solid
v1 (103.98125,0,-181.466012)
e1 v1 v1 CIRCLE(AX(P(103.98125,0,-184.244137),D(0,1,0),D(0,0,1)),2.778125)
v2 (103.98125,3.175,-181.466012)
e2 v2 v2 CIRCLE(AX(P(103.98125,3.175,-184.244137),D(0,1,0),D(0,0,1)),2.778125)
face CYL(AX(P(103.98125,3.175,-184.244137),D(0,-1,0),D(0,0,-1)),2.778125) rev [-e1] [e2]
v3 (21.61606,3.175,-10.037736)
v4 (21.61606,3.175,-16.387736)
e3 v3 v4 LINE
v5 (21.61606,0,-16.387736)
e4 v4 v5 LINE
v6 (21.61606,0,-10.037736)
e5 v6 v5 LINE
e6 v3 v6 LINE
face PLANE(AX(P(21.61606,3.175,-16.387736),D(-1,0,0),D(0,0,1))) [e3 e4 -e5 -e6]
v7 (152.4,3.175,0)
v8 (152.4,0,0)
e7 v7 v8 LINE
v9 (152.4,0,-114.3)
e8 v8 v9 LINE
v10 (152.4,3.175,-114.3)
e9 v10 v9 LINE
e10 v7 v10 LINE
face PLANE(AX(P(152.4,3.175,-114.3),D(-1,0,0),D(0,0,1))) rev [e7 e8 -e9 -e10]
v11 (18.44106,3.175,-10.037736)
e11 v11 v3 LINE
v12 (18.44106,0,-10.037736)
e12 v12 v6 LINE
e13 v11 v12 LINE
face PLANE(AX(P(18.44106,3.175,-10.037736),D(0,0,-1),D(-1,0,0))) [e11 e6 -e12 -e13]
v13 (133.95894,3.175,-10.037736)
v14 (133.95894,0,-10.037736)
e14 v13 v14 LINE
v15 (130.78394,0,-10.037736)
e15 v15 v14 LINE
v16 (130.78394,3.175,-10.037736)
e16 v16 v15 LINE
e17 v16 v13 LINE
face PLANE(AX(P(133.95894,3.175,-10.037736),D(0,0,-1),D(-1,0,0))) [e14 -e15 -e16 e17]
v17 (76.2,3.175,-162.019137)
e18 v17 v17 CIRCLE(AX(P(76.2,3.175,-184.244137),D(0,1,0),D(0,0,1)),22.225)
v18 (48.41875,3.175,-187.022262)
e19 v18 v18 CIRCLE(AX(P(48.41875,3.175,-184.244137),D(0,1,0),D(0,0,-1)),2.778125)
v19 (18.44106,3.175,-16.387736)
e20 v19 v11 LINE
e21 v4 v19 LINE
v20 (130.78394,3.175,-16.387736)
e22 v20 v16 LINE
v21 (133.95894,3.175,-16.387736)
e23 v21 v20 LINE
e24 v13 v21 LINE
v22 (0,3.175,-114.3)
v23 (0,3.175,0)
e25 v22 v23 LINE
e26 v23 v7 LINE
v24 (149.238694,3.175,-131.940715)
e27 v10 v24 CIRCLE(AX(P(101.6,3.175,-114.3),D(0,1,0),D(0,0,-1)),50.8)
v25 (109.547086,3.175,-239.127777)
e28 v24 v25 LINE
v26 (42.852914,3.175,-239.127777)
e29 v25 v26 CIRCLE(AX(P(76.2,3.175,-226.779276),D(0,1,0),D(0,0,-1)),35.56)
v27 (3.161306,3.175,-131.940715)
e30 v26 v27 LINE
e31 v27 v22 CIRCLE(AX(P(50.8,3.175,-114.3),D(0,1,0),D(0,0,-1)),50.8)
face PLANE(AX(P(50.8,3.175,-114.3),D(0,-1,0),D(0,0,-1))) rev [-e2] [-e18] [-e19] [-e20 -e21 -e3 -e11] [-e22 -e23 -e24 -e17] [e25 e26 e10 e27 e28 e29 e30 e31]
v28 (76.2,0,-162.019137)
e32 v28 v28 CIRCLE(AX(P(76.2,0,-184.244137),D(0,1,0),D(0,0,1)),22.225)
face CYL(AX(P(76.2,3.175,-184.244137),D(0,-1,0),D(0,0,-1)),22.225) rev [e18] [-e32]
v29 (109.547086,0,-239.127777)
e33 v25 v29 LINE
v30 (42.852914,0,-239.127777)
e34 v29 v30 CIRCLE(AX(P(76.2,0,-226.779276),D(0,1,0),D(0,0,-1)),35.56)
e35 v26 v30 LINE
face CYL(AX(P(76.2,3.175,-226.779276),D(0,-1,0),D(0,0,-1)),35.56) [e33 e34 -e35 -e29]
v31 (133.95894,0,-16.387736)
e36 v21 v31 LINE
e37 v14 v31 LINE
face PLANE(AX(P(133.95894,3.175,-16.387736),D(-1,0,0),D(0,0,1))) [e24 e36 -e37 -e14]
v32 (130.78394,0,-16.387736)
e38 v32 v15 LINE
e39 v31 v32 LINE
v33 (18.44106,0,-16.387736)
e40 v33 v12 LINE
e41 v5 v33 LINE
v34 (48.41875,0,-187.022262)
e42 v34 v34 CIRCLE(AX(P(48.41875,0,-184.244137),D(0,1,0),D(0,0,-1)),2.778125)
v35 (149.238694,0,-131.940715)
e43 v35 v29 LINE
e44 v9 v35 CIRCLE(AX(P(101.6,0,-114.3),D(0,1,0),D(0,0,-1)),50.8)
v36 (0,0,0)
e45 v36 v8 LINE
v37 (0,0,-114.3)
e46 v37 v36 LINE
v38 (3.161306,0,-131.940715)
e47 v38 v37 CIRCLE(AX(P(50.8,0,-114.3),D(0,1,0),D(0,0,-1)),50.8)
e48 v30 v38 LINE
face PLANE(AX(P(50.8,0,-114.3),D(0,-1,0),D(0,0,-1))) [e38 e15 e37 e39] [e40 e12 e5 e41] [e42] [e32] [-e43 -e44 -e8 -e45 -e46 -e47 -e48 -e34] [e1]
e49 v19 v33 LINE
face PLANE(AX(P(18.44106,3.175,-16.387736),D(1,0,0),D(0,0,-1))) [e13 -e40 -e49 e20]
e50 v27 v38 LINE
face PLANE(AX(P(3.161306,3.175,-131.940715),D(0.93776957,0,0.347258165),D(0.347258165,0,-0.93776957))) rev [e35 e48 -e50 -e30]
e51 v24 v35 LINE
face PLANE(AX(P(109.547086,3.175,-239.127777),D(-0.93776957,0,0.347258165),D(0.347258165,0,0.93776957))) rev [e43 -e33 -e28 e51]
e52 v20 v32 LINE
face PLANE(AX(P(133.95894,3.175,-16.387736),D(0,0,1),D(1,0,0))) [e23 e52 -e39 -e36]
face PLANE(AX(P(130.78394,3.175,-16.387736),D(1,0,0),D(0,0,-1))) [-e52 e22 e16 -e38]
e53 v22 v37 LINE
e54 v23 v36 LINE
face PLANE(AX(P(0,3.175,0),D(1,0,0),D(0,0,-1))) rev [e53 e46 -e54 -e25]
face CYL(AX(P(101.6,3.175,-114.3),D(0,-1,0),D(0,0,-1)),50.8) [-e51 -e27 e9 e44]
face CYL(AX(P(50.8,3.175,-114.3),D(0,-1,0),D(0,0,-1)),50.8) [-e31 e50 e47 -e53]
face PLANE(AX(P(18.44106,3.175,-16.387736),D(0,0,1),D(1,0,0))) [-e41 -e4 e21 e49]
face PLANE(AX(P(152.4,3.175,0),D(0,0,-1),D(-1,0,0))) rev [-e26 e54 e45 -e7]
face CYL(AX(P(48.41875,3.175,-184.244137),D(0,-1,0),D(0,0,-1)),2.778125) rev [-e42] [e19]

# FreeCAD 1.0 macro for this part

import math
import FreeCAD as App
import Part
import Sketcher
from FreeCAD import Vector
Q = App.Units.Quantity


def add_polygon(sketch, points):
    """Adds a closed chain of lines whose ends are joined by coincident constraints."""
    first, n = sketch.GeometryCount, len(points)
    for a, b in zip(points, points[1:] + points[:1]):
        sketch.addGeometry(Part.LineSegment(App.Vector(*a, 0), App.Vector(*b, 0)), False)
    for i in range(n):
        sketch.addConstraint(Sketcher.Constraint("Coincident", first + i, 2, first + (i + 1) % n, 1))

doc = App.newDocument("Part")
body = doc.addObject("PartDesign::Body", "Body")

# Sketch on XZ plane
sketch1 = body.newObject("Sketcher::SketchObject", "Sketch")
sketch1.AttachmentSupport = (doc.getObject("XZ_Plane"), [""])
sketch1.MapMode = "FlatFace"
sketch1.addGeometry(Part.LineSegment(Vector(0, -114.3, 0), Vector(0, 0, 0)), False)  # 0
sketch1.addGeometry(Part.LineSegment(Vector(0, 0, 0), Vector(152.4, 0, 0)), False)  # 1
sketch1.addGeometry(Part.LineSegment(Vector(152.4, 0, 0), Vector(152.4, -114.3, 0)), False)  # 2
sketch1.addGeometry(Part.ArcOfCircle(Part.Circle(Vector(101.6, -114.3, 0), Vector(0, 0, 1), 50.8), math.radians(-20), math.radians(0)), False)  # 3
sketch1.addGeometry(Part.LineSegment(Vector(149.2, -131.9, 0), Vector(109.5, -239.1, 0)), False)  # 4
sketch1.addGeometry(Part.ArcOfCircle(Part.Circle(Vector(76.2, -226.8, 0), Vector(0, 0, 1), 35.6), math.radians(-160), math.radians(-20)), False)  # 5
sketch1.addGeometry(Part.LineSegment(Vector(42.9, -239.1, 0), Vector(3.2, -131.9, 0)), False)  # 6
sketch1.addGeometry(Part.ArcOfCircle(Part.Circle(Vector(50.8, -114.3, 0), Vector(0, 0, 1), 50.8), math.radians(-180), math.radians(-160)), False)  # 7
add_polygon(sketch1, [(130.8, -10), (130.8, -16.4), (134, -16.4), (134, -10)])  # lines 8-11
add_polygon(sketch1, [(18.4, -10), (18.4, -16.4), (21.6, -16.4), (21.6, -10)])  # lines 12-15
sketch1.addGeometry(Part.Circle(Vector(104, -184.2, 0), Vector(0, 0, 1), 2.8), False)  # 16
sketch1.addGeometry(Part.Circle(Vector(76.2, -184.2, 0), Vector(0, 0, 1), 22.2), False)  # 17
sketch1.addGeometry(Part.Circle(Vector(48.4, -184.2, 0), Vector(0, 0, 1), 2.8), False)  # 18
sketch1.addConstraint(Sketcher.Constraint("Coincident", 0, 2, 1, 1))
sketch1.addConstraint(Sketcher.Constraint("Coincident", 1, 2, 2, 1))
sketch1.addConstraint(Sketcher.Constraint("Tangent", 2, 2, 3, 2))
sketch1.addConstraint(Sketcher.Constraint("Tangent", 3, 1, 4, 1))
sketch1.addConstraint(Sketcher.Constraint("Tangent", 4, 2, 5, 2))
sketch1.addConstraint(Sketcher.Constraint("Tangent", 5, 1, 6, 1))
sketch1.addConstraint(Sketcher.Constraint("Tangent", 6, 2, 7, 2))
sketch1.addConstraint(Sketcher.Constraint("Tangent", 7, 1, 0, 1))
sketch1.addConstraint(Sketcher.Constraint("Vertical", 0))
sketch1.addConstraint(Sketcher.Constraint("Horizontal", 1))
sketch1.addConstraint(Sketcher.Constraint("Vertical", 2))
sketch1.addConstraint(Sketcher.Constraint("Vertical", 8))
sketch1.addConstraint(Sketcher.Constraint("Horizontal", 9))
sketch1.addConstraint(Sketcher.Constraint("Vertical", 10))
sketch1.addConstraint(Sketcher.Constraint("Horizontal", 11))
sketch1.addConstraint(Sketcher.Constraint("Vertical", 12))
sketch1.addConstraint(Sketcher.Constraint("Horizontal", 13))
sketch1.addConstraint(Sketcher.Constraint("Vertical", 14))
sketch1.addConstraint(Sketcher.Constraint("Horizontal", 15))
sketch1.addConstraint(Sketcher.Constraint("Coincident", 0, 2, -1, 1))
sketch1.addConstraint(Sketcher.Constraint("Equal", 3, 7))
sketch1.addConstraint(Sketcher.Constraint("Equal", 16, 18))
sketch1.addConstraint(Sketcher.Constraint("Horizontal", 3, 3, 7, 3))
sketch1.addConstraint(Sketcher.Constraint("Horizontal", 16, 3, 17, 3))
sketch1.addConstraint(Sketcher.Constraint("Horizontal", 17, 3, 18, 3))
sketch1.addConstraint(Sketcher.Constraint("Horizontal", 4, 2, 5, 1))
sketch1.addConstraint(Sketcher.Constraint("Horizontal", 9, 2, 12, 2))
sketch1.addConstraint(Sketcher.Constraint("Horizontal", 11, 2, 14, 2))
sketch1.addConstraint(Sketcher.Constraint("Vertical", 5, 3, 17, 3))
sketch1.addConstraint(Sketcher.Constraint("Equal", 11, 13))
sketch1.addConstraint(Sketcher.Constraint("Radius", 3, Q("2 in")))
sketch1.addConstraint(Sketcher.Constraint("Radius", 5, Q("1.4 in")))
sketch1.addConstraint(Sketcher.Constraint("Diameter", 17, Q("1.75 in")))
sketch1.addConstraint(Sketcher.Constraint("DistanceX", 1, 1, 1, 2, Q("6 in")))
sketch1.addConstraint(Sketcher.Constraint("Diameter", 16, Q("0.21875 in")))
sketch1.addConstraint(Sketcher.Constraint("DistanceY", 0, 1, 0, 2, Q("4.5 in")))
sketch1.addConstraint(Sketcher.Constraint("Distance", 4, Q("4.5 in")))
sketch1.addConstraint(Sketcher.Constraint("DistanceY", 8, 2, 8, 1, Q("0.25 in")))
sketch1.addConstraint(Sketcher.Constraint("DistanceX", 9, 1, 9, 2, Q("0.125 in")))
sketch1.addConstraint(Sketcher.Constraint("DistanceX", -1, 1, 16, 3, Q("4.09375 in")))
sketch1.addConstraint(Sketcher.Constraint("DistanceX", -1, 1, 18, 3, Q("1.90625 in")))
sketch1.addConstraint(Sketcher.Constraint("DistanceX", -1, 1, 8, 2, Q("130.78394 mm")))
sketch1.addConstraint(Sketcher.Constraint("DistanceX", -1, 1, 12, 2, Q("18.44106 mm")))
sketch1.addConstraint(Sketcher.Constraint("DistanceY", 5, 3, 16, 3, Q("42.535139 mm")))
sketch1.addConstraint(Sketcher.Constraint("DistanceY", 3, 1, 8, 2, Q("115.552979 mm")))
pad1 = body.newObject("PartDesign::Pad", "Pad")
pad1.Profile = sketch1
pad1.Length = Q("0.125 in")
pad1.Reversed = True

doc.recompute()
